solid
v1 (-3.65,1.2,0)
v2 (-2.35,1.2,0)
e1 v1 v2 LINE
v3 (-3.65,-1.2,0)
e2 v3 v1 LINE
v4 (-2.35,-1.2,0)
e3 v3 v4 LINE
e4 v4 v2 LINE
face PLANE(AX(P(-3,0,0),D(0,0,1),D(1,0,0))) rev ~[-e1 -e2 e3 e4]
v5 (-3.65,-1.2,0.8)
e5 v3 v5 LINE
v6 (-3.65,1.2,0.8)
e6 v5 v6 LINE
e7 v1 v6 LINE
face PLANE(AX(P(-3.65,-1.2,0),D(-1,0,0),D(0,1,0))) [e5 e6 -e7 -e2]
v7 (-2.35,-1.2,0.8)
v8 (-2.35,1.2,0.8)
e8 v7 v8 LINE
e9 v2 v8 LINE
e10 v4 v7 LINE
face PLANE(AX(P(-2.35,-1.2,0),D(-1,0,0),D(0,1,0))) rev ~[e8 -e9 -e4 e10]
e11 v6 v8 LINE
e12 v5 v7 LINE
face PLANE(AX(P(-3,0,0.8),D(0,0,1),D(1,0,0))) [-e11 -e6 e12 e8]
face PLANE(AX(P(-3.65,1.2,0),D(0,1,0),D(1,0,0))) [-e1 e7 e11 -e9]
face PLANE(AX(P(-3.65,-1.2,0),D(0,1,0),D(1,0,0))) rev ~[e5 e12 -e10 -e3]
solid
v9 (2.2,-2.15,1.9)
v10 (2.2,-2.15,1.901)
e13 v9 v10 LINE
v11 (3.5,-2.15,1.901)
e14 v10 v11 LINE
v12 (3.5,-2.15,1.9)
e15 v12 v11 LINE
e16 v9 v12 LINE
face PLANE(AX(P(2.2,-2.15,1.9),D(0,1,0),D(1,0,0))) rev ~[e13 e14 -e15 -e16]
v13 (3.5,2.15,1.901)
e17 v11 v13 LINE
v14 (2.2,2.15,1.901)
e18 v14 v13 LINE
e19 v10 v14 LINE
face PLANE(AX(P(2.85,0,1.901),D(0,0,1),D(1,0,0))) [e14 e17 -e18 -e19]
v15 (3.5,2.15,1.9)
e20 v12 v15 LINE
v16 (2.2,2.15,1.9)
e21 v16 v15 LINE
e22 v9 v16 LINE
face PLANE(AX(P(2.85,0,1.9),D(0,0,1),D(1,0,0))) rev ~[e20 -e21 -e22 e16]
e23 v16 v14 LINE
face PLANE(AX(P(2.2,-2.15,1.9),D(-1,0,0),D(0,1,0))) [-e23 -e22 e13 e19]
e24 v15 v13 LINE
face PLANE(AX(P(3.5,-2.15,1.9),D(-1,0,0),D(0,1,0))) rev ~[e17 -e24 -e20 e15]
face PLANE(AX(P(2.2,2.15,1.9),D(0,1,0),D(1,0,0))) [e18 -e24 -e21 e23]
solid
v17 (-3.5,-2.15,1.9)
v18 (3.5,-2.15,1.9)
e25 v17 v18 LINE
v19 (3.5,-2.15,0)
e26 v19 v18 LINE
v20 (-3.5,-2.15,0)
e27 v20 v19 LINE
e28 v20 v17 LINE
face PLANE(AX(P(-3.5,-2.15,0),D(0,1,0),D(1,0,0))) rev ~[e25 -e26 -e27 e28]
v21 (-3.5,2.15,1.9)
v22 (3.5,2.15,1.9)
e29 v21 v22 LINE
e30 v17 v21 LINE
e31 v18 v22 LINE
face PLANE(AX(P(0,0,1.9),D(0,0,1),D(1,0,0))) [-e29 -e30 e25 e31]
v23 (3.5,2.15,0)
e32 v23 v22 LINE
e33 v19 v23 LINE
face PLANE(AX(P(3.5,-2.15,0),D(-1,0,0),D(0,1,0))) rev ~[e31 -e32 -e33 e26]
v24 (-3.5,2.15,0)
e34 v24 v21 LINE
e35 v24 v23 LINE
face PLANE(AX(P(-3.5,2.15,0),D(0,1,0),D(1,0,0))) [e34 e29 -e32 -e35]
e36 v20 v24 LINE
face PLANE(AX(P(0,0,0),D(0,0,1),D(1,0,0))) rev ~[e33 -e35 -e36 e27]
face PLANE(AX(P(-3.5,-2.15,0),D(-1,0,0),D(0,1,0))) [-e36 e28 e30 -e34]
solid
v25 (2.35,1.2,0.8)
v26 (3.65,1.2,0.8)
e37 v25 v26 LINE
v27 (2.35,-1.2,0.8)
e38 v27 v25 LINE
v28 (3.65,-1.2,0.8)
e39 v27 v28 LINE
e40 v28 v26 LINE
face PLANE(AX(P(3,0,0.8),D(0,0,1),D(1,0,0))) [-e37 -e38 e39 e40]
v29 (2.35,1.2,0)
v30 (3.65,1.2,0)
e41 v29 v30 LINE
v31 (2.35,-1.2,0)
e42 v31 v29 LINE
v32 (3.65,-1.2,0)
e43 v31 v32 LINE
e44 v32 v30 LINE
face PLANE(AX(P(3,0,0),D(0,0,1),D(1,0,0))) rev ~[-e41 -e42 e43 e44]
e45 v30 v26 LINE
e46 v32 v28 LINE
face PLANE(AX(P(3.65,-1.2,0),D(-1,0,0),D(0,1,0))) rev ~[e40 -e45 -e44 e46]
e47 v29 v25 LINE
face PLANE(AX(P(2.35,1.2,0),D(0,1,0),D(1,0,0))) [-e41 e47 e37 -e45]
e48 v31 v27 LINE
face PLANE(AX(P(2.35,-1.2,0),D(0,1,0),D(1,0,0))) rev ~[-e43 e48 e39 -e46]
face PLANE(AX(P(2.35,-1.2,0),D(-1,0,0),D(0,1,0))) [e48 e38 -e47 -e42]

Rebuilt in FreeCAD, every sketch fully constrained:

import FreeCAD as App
import Part
import Sketcher
from FreeCAD import Vector
Q = App.Units.Quantity


def add_polygon(sketch, points):
    """Adds a closed chain of lines whose ends are joined by coincident constraints."""
    first, n = sketch.GeometryCount, len(points)
    for a, b in zip(points, points[1:] + points[:1]):
        sketch.addGeometry(Part.LineSegment(App.Vector(*a, 0), App.Vector(*b, 0)), False)
    for i in range(n):
        sketch.addConstraint(Sketcher.Constraint("Coincident", first + i, 2, first + (i + 1) % n, 1))

doc = App.newDocument("Part")
body = doc.addObject("PartDesign::Body", "Body")
body.AllowCompound = True

# Sketch on XY plane
sketch1 = body.newObject("Sketcher::SketchObject", "Sketch")
sketch1.AttachmentSupport = (doc.getObject("XY_Plane"), [""])
sketch1.MapMode = "FlatFace"
add_polygon(sketch1, [(-3.6, 1.2), (-3.6, -1.2), (-2.4, -1.2), (-2.4, 1.2)])  # lines 0-3
add_polygon(sketch1, [(2.4, 1.2), (2.4, -1.2), (3.6, -1.2), (3.6, 1.2)])  # lines 4-7
sketch1.addConstraint(Sketcher.Constraint("Vertical", 0))
sketch1.addConstraint(Sketcher.Constraint("Horizontal", 1))
sketch1.addConstraint(Sketcher.Constraint("Vertical", 2))
sketch1.addConstraint(Sketcher.Constraint("Horizontal", 3))
sketch1.addConstraint(Sketcher.Constraint("Vertical", 4))
sketch1.addConstraint(Sketcher.Constraint("Horizontal", 5))
sketch1.addConstraint(Sketcher.Constraint("Vertical", 6))
sketch1.addConstraint(Sketcher.Constraint("Horizontal", 7))
sketch1.addConstraint(Sketcher.Constraint("Symmetric", 2, 2, 4, 2, -1, 1))
sketch1.addConstraint(Sketcher.Constraint("Symmetric", 0, 2, 6, 2, -1, 1))
sketch1.addConstraint(Sketcher.Constraint("Horizontal", 1, 2, 4, 2))
sketch1.addConstraint(Sketcher.Constraint("DistanceX", 1, 1, 1, 2, Q("1.3 mm")))
sketch1.addConstraint(Sketcher.Constraint("DistanceY", 0, 2, 0, 1, Q("2.4 mm")))
sketch1.addConstraint(Sketcher.Constraint("DistanceX", 0, 2, 4, 2, Q("6 mm")))
pad1 = body.newObject("PartDesign::Pad", "Pad")
pad1.Profile = sketch1
pad1.Length = 0.8
body2 = doc.addObject("PartDesign::Body", "Body001")

# Sketch on XY plane
sketch2 = body2.newObject("Sketcher::SketchObject", "Sketch001")
sketch2.AttachmentSupport = (doc.getObject("XY_Plane001"), [""])
sketch2.MapMode = "FlatFace"
add_polygon(sketch2, [(-3.5, 2.1), (-3.5, -2.1), (3.5, -2.1), (3.5, 2.1)])  # lines 0-3
sketch2.addConstraint(Sketcher.Constraint("Vertical", 0))
sketch2.addConstraint(Sketcher.Constraint("Horizontal", 1))
sketch2.addConstraint(Sketcher.Constraint("Vertical", 2))
sketch2.addConstraint(Sketcher.Constraint("Horizontal", 3))
sketch2.addConstraint(Sketcher.Constraint("Symmetric", 0, 2, 2, 2, -1, 1))
sketch2.addConstraint(Sketcher.Constraint("DistanceX", 1, 1, 1, 2, Q("7 mm")))
sketch2.addConstraint(Sketcher.Constraint("DistanceY", 0, 2, 0, 1, Q("4.3 mm")))
pad2 = body2.newObject("PartDesign::Pad", "Pad001")
pad2.Profile = sketch2
pad2.Length = 1.9
body3 = doc.addObject("PartDesign::Body", "Body002")

# Sketch on XY plane
sketch3 = body3.newObject("Sketcher::SketchObject", "Sketch002")
sketch3.AttachmentSupport = (doc.getObject("XY_Plane002"), [""])
sketch3.MapMode = "FlatFace"
sketch3.AttachmentOffset = App.Placement(Vector(0, 0, 1.9), App.Rotation())
add_polygon(sketch3, [(2.2, 2.1), (2.2, -2.1), (3.5, -2.1), (3.5, 2.1)])  # lines 0-3
sketch3.addConstraint(Sketcher.Constraint("Vertical", 0))
sketch3.addConstraint(Sketcher.Constraint("Horizontal", 1))
sketch3.addConstraint(Sketcher.Constraint("Vertical", 2))
sketch3.addConstraint(Sketcher.Constraint("Horizontal", 3))
sketch3.addConstraint(Sketcher.Constraint("DistanceX", 1, 1, 1, 2, Q("1.3 mm")))
sketch3.addConstraint(Sketcher.Constraint("DistanceY", 0, 2, 0, 1, Q("4.3 mm")))
sketch3.addConstraint(Sketcher.Constraint("DistanceX", -1, 1, 0, 2, Q("2.2 mm")))
sketch3.addConstraint(Sketcher.Constraint("DistanceY", 0, 2, -1, 1, Q("2.15 mm")))
pad3 = body3.newObject("PartDesign::Pad", "Pad002")
pad3.Profile = sketch3
pad3.Length = 0.001

doc.recompute()
